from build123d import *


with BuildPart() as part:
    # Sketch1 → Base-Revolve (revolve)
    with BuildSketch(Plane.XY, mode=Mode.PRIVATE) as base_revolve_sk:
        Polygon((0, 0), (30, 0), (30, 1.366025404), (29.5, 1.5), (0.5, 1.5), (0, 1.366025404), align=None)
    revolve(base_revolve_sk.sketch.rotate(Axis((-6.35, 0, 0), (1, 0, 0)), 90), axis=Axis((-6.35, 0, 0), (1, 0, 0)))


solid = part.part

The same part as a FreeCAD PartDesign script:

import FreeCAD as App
import Part
import Sketcher
from FreeCAD import Vector
Q = App.Units.Quantity


def add_polygon(sketch, points):
    """Adds a closed chain of lines whose ends are joined by coincident constraints."""
    first, n = sketch.GeometryCount, len(points)
    for a, b in zip(points, points[1:] + points[:1]):
        sketch.addGeometry(Part.LineSegment(App.Vector(*a, 0), App.Vector(*b, 0)), False)
    for i in range(n):
        sketch.addConstraint(Sketcher.Constraint("Coincident", first + i, 2, first + (i + 1) % n, 1))

doc = App.newDocument("Part")
body = doc.addObject("PartDesign::Body", "Body")

sketch1 = body.newObject("Sketcher::SketchObject", "Sketch")
sketch1.AttachmentSupport = (doc.getObject("XY_Plane"), [""])
sketch1.MapMode = "FlatFace"
add_polygon(sketch1, [(0, 0), (30, 0), (30, 1.366025), (29.5, 1.5), (0.5, 1.5), (0, 1.366025)])
sketch1.addConstraint(Sketcher.Constraint("Horizontal", 0))
sketch1.addConstraint(Sketcher.Constraint("Vertical", 1))
sketch1.addConstraint(Sketcher.Constraint("Horizontal", 3))
sketch1.addConstraint(Sketcher.Constraint("Vertical", 5))
sketch1.addConstraint(Sketcher.Constraint("Coincident", 5, 2, -1, 1))
sketch1.addConstraint(Sketcher.Constraint("Horizontal", 1, 2, 4, 2))
sketch1.addConstraint(Sketcher.Constraint("Equal", 2, 4))
sketch1.addConstraint(Sketcher.Constraint("DistanceX", 0, 1, 0, 2, Q("30 mm")))
sketch1.addConstraint(Sketcher.Constraint("DistanceX", 3, 2, 3, 1, Q("29 mm")))
sketch1.addConstraint(Sketcher.Constraint("Angle", 2, Q("165 deg")))
sketch1.addConstraint(Sketcher.Constraint("DistanceY", -1, 1, 2, 2, Q("1.5 mm")))
revolution = body.newObject("PartDesign::Revolution", "Revolution")
revolution.Profile = sketch1
revolution.ReferenceAxis = (sketch1, ["H_Axis"])
revolution.Angle = 360

doc.recompute()
